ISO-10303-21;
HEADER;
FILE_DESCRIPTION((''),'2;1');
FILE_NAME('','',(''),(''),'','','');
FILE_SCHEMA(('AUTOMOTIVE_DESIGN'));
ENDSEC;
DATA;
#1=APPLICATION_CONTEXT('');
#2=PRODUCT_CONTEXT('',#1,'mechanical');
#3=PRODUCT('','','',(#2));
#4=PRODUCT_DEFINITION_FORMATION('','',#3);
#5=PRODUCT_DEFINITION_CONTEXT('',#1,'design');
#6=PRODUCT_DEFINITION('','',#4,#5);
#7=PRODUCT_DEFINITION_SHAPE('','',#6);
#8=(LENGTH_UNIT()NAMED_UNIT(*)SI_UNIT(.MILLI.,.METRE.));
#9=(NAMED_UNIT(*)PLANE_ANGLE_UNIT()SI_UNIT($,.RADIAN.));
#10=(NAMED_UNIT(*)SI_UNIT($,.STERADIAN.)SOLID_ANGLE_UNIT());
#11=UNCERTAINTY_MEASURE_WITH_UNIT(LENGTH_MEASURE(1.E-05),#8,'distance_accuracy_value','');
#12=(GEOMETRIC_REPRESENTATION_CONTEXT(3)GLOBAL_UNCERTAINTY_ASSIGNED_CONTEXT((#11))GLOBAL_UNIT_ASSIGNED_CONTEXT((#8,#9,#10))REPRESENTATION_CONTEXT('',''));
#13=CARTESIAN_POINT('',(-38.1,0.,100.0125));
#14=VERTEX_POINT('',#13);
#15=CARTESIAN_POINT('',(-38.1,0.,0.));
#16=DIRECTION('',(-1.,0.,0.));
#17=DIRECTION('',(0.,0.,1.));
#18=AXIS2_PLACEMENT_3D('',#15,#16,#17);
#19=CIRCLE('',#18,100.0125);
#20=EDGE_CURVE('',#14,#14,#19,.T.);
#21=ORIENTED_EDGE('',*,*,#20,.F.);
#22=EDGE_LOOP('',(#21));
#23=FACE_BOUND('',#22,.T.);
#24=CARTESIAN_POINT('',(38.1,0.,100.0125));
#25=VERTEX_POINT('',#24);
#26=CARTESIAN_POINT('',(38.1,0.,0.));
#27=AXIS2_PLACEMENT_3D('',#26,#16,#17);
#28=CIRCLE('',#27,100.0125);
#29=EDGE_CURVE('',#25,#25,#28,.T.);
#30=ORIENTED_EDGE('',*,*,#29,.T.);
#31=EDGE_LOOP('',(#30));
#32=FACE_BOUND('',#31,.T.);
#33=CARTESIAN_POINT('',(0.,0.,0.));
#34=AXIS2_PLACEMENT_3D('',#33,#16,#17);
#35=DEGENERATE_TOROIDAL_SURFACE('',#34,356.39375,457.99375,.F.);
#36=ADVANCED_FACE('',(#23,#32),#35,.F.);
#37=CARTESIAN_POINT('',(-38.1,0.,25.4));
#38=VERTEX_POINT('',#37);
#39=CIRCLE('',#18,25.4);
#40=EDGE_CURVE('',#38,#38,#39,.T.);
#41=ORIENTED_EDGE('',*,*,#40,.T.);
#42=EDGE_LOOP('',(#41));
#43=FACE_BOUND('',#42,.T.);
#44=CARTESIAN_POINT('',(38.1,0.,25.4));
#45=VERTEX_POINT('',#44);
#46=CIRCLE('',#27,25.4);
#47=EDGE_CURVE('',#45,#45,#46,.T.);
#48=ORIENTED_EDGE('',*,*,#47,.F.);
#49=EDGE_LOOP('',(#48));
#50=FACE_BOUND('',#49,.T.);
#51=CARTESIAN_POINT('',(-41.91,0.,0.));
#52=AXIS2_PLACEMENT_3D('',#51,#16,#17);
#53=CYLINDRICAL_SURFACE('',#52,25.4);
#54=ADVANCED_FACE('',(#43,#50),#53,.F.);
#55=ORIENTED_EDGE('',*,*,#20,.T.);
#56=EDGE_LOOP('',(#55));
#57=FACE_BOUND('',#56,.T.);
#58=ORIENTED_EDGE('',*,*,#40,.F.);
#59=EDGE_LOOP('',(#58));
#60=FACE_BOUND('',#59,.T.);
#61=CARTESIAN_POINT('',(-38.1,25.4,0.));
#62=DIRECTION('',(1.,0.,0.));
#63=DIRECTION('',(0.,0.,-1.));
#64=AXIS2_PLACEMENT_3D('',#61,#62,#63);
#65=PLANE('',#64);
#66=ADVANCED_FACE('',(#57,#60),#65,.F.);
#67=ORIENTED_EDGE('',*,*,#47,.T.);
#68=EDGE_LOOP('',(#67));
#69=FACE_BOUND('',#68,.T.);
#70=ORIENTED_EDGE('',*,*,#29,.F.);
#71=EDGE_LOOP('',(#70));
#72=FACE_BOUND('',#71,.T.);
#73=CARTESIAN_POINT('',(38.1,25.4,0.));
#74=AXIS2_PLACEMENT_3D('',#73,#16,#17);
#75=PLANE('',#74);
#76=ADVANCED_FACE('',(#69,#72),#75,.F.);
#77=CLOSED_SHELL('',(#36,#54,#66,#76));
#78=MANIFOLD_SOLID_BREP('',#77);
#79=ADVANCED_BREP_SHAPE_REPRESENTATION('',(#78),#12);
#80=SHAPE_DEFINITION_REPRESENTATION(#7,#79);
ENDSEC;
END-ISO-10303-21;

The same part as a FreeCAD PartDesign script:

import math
import FreeCAD as App
import Part
import Sketcher

V = App.Vector
Q = App.Units.Quantity

doc = App.newDocument("Part")
body = doc.addObject("PartDesign::Body", "Body")

sketch1 = doc.addObject("Sketcher::SketchObject", "Sketch")
body.addObject(sketch1)
sketch1.AttachmentSupport = (doc.XY_Plane, [""])
sketch1.MapMode = "FlatFace"
sketch1.addGeometry([
    Part.LineSegment(V(-38, 25, 0), V(38, 25, 0)),
    Part.LineSegment(V(38, 25, 0), V(38, 100, 0)),
    Part.ArcOfCircle(Part.Circle(V(0, -356, 0), V(0, 0, 1), 458), math.radians(85.23), math.radians(94.77)),
    Part.LineSegment(V(-38, 100, 0), V(-38, 25, 0)),
], False)
sketch1.addConstraint([
    Sketcher.Constraint("Coincident", 0, 2, 1, 1),
    Sketcher.Constraint("Coincident", 1, 2, 2, 1),
    Sketcher.Constraint("Coincident", 2, 2, 3, 1),
    Sketcher.Constraint("Coincident", 3, 2, 0, 1),
    Sketcher.Constraint("Horizontal", 0),
    Sketcher.Constraint("Vertical", 1),
    Sketcher.Constraint("Vertical", 3),
    Sketcher.Constraint("PointOnObject", 2, 3, -2),
    Sketcher.Constraint("Equal", 1, 3),
    Sketcher.Constraint("DistanceX", 0, 1, 0, 2, Q("3 in")),
    Sketcher.Constraint("DistanceY", -1, 1, 0, 2, Q("1 in")),
    Sketcher.Constraint("Radius", 2, Q("18.03125 in")),
    Sketcher.Constraint("DistanceY", 1, 1, 1, 2, Q("2.9375 in")),
])
revolution = doc.addObject("PartDesign::Revolution", "Revolution")
body.addObject(revolution)
revolution.Profile = sketch1
revolution.ReferenceAxis = (sketch1, ["H_Axis"])
revolution.Angle = 360

doc.recompute()
